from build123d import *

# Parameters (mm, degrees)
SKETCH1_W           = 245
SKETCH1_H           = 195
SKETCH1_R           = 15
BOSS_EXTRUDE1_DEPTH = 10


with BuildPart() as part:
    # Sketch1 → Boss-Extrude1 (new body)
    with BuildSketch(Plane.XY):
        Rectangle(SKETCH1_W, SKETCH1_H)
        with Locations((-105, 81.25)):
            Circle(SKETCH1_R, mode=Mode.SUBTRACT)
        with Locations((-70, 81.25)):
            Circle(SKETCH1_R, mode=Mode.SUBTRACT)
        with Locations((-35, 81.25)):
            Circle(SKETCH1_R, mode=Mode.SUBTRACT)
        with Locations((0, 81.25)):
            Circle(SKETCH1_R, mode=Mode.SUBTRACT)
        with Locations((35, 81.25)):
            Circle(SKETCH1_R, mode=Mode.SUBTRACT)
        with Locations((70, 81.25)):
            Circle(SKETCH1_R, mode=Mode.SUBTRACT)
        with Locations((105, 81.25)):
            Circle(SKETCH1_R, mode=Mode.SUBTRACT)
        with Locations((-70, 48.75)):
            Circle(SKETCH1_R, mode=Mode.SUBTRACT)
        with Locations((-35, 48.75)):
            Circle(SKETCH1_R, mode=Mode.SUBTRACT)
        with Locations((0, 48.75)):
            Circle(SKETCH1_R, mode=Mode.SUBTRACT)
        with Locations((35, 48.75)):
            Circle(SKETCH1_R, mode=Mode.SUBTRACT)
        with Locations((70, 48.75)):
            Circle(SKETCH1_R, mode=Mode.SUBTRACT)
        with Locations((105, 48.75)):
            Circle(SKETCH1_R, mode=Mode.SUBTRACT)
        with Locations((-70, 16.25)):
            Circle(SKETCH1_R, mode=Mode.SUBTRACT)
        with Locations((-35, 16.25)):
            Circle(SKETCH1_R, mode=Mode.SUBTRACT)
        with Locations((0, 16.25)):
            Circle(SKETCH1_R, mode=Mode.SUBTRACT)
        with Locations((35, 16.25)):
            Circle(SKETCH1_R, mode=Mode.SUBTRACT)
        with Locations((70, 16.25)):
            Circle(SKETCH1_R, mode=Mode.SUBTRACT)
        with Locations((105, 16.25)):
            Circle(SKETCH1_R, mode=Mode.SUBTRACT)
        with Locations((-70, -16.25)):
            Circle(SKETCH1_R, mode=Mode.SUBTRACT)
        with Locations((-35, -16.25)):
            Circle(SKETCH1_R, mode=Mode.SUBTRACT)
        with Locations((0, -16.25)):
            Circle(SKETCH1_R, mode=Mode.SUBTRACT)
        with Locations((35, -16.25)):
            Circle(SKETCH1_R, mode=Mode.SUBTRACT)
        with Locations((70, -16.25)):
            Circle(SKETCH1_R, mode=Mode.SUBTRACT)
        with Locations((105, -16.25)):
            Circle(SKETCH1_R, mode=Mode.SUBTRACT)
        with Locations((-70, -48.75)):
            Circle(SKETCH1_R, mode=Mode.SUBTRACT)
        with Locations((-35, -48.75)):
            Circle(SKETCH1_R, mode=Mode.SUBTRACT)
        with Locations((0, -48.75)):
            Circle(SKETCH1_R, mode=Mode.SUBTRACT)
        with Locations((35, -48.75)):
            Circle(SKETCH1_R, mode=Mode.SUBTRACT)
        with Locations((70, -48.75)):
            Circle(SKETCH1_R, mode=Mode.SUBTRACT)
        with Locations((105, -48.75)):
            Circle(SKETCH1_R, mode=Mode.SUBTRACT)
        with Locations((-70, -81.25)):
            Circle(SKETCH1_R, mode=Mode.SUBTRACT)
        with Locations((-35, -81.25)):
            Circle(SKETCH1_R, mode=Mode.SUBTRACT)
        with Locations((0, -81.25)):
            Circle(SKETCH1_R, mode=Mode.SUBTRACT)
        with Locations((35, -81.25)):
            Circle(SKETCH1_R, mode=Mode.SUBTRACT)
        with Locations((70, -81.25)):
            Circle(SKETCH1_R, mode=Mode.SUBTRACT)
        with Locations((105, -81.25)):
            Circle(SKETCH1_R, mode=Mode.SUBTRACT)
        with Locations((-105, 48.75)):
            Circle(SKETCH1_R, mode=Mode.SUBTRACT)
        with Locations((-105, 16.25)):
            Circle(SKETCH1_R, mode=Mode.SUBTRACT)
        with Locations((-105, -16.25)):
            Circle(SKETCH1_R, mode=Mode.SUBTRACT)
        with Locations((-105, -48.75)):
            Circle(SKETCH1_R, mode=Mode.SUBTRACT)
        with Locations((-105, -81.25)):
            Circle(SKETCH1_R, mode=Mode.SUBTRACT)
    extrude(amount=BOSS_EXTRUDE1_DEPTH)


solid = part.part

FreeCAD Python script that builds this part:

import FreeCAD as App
import Part
import Sketcher
Q = App.Units.Quantity


def add_polygon(sketch, points):
    """Adds a closed chain of lines whose ends are joined by coincident constraints."""
    first, n = sketch.GeometryCount, len(points)
    for a, b in zip(points, points[1:] + points[:1]):
        sketch.addGeometry(Part.LineSegment(App.Vector(*a, 0), App.Vector(*b, 0)), False)
    for i in range(n):
        sketch.addConstraint(Sketcher.Constraint("Coincident", first + i, 2, first + (i + 1) % n, 1))

doc = App.newDocument("Part")
body = doc.addObject("PartDesign::Body", "Body")

sketch1 = doc.addObject("Sketcher::SketchObject", "Sketch")
body.addObject(sketch1)
sketch1.AttachmentSupport = (doc.XY_Plane, [""])
sketch1.MapMode = "FlatFace"
add_polygon(sketch1, [(-122, 98), (-122, -98), (122, -98), (122, 98)])
sketch1.addGeometry(Part.Circle(App.Vector(-105, -81, 0), App.Vector(0, 0, 1), 15), False)
sketch1.addGeometry(Part.Circle(App.Vector(-70, -81, 0), App.Vector(0, 0, 1), 15), False)
sketch1.addGeometry(Part.Circle(App.Vector(-105, -49, 0), App.Vector(0, 0, 1), 15), False)
sketch1.addGeometry(Part.Circle(App.Vector(-70, -49, 0), App.Vector(0, 0, 1), 15), False)
sketch1.addGeometry(Part.Circle(App.Vector(-35, -81, 0), App.Vector(0, 0, 1), 15), False)
sketch1.addGeometry(Part.Circle(App.Vector(-35, -49, 0), App.Vector(0, 0, 1), 15), False)
sketch1.addGeometry(Part.Circle(App.Vector(-105, -16, 0), App.Vector(0, 0, 1), 15), False)
sketch1.addGeometry(Part.Circle(App.Vector(-70, -16, 0), App.Vector(0, 0, 1), 15), False)
sketch1.addGeometry(Part.Circle(App.Vector(-35, -16, 0), App.Vector(0, 0, 1), 15), False)
sketch1.addGeometry(Part.Circle(App.Vector(0, -81, 0), App.Vector(0, 0, 1), 15), False)
sketch1.addGeometry(Part.Circle(App.Vector(35, -81, 0), App.Vector(0, 0, 1), 15), False)
sketch1.addGeometry(Part.Circle(App.Vector(0, -49, 0), App.Vector(0, 0, 1), 15), False)
sketch1.addGeometry(Part.Circle(App.Vector(35, -49, 0), App.Vector(0, 0, 1), 15), False)
sketch1.addGeometry(Part.Circle(App.Vector(70, -81, 0), App.Vector(0, 0, 1), 15), False)
sketch1.addGeometry(Part.Circle(App.Vector(105, -81, 0), App.Vector(0, 0, 1), 15), False)
sketch1.addGeometry(Part.Circle(App.Vector(70, -49, 0), App.Vector(0, 0, 1), 15), False)
sketch1.addGeometry(Part.Circle(App.Vector(105, -49, 0), App.Vector(0, 0, 1), 15), False)
sketch1.addGeometry(Part.Circle(App.Vector(0, -16, 0), App.Vector(0, 0, 1), 15), False)
sketch1.addGeometry(Part.Circle(App.Vector(35, -16, 0), App.Vector(0, 0, 1), 15), False)
sketch1.addGeometry(Part.Circle(App.Vector(70, -16, 0), App.Vector(0, 0, 1), 15), False)
sketch1.addGeometry(Part.Circle(App.Vector(105, -16, 0), App.Vector(0, 0, 1), 15), False)
sketch1.addGeometry(Part.Circle(App.Vector(-105, 16, 0), App.Vector(0, 0, 1), 15), False)
sketch1.addGeometry(Part.Circle(App.Vector(-70, 16, 0), App.Vector(0, 0, 1), 15), False)
sketch1.addGeometry(Part.Circle(App.Vector(-35, 16, 0), App.Vector(0, 0, 1), 15), False)
sketch1.addGeometry(Part.Circle(App.Vector(-105, 49, 0), App.Vector(0, 0, 1), 15), False)
sketch1.addGeometry(Part.Circle(App.Vector(-70, 49, 0), App.Vector(0, 0, 1), 15), False)
sketch1.addGeometry(Part.Circle(App.Vector(-105, 81, 0), App.Vector(0, 0, 1), 15), False)
sketch1.addGeometry(Part.Circle(App.Vector(-70, 81, 0), App.Vector(0, 0, 1), 15), False)
sketch1.addGeometry(Part.Circle(App.Vector(-35, 49, 0), App.Vector(0, 0, 1), 15), False)
sketch1.addGeometry(Part.Circle(App.Vector(-35, 81, 0), App.Vector(0, 0, 1), 15), False)
sketch1.addGeometry(Part.Circle(App.Vector(0, 16, 0), App.Vector(0, 0, 1), 15), False)
sketch1.addGeometry(Part.Circle(App.Vector(35, 16, 0), App.Vector(0, 0, 1), 15), False)
sketch1.addGeometry(Part.Circle(App.Vector(70, 16, 0), App.Vector(0, 0, 1), 15), False)
sketch1.addGeometry(Part.Circle(App.Vector(105, 16, 0), App.Vector(0, 0, 1), 15), False)
sketch1.addGeometry(Part.Circle(App.Vector(0, 49, 0), App.Vector(0, 0, 1), 15), False)
sketch1.addGeometry(Part.Circle(App.Vector(35, 49, 0), App.Vector(0, 0, 1), 15), False)
sketch1.addGeometry(Part.Circle(App.Vector(0, 81, 0), App.Vector(0, 0, 1), 15), False)
sketch1.addGeometry(Part.Circle(App.Vector(35, 81, 0), App.Vector(0, 0, 1), 15), False)
sketch1.addGeometry(Part.Circle(App.Vector(70, 49, 0), App.Vector(0, 0, 1), 15), False)
sketch1.addGeometry(Part.Circle(App.Vector(105, 49, 0), App.Vector(0, 0, 1), 15), False)
sketch1.addGeometry(Part.Circle(App.Vector(70, 81, 0), App.Vector(0, 0, 1), 15), False)
sketch1.addGeometry(Part.Circle(App.Vector(105, 81, 0), App.Vector(0, 0, 1), 15), False)
sketch1.addConstraint([
    Sketcher.Constraint("Vertical", 0),
    Sketcher.Constraint("Horizontal", 1),
    Sketcher.Constraint("Vertical", 2),
    Sketcher.Constraint("Horizontal", 3),
    Sketcher.Constraint("Equal", 4, 5),
    Sketcher.Constraint("Equal", 5, 6),
    Sketcher.Constraint("Equal", 6, 7),
    Sketcher.Constraint("Equal", 7, 8),
    Sketcher.Constraint("Equal", 8, 9),
    Sketcher.Constraint("Equal", 9, 10),
    Sketcher.Constraint("Equal", 10, 11),
    Sketcher.Constraint("Equal", 11, 12),
    Sketcher.Constraint("Equal", 12, 13),
    Sketcher.Constraint("Equal", 13, 14),
    Sketcher.Constraint("Equal", 14, 15),
    Sketcher.Constraint("Equal", 15, 16),
    Sketcher.Constraint("Equal", 16, 17),
    Sketcher.Constraint("Equal", 17, 18),
    Sketcher.Constraint("Equal", 18, 19),
    Sketcher.Constraint("Equal", 19, 20),
    Sketcher.Constraint("Equal", 20, 21),
    Sketcher.Constraint("Equal", 21, 22),
    Sketcher.Constraint("Equal", 22, 23),
    Sketcher.Constraint("Equal", 23, 24),
    Sketcher.Constraint("Equal", 24, 25),
    Sketcher.Constraint("Equal", 25, 26),
    Sketcher.Constraint("Equal", 26, 27),
    Sketcher.Constraint("Equal", 27, 28),
    Sketcher.Constraint("Equal", 28, 29),
    Sketcher.Constraint("Equal", 29, 30),
    Sketcher.Constraint("Equal", 30, 31),
    Sketcher.Constraint("Equal", 31, 32),
    Sketcher.Constraint("Equal", 32, 33),
    Sketcher.Constraint("Equal", 33, 34),
    Sketcher.Constraint("Equal", 34, 35),
    Sketcher.Constraint("Equal", 35, 36),
    Sketcher.Constraint("Equal", 36, 37),
    Sketcher.Constraint("Equal", 37, 38),
    Sketcher.Constraint("Equal", 38, 39),
    Sketcher.Constraint("Equal", 39, 40),
    Sketcher.Constraint("Equal", 40, 41),
    Sketcher.Constraint("Equal", 41, 42),
    Sketcher.Constraint("Equal", 42, 43),
    Sketcher.Constraint("Equal", 43, 44),
    Sketcher.Constraint("Equal", 44, 45),
    Sketcher.Constraint("Symmetric", 24, 3, 25, 3, -1, 1),
    Sketcher.Constraint("Symmetric", 23, 3, 26, 3, -1, 1),
    Sketcher.Constraint("Symmetric", 22, 3, 27, 3, -1, 1),
    Sketcher.Constraint("Symmetric", 20, 3, 28, 3, -1, 1),
    Sketcher.Constraint("Symmetric", 19, 3, 29, 3, -1, 1),
    Sketcher.Constraint("Symmetric", 18, 3, 30, 3, -1, 1),
    Sketcher.Constraint("Symmetric", 17, 3, 31, 3, -1, 1),
    Sketcher.Constraint("Symmetric", 16, 3, 32, 3, -1, 1),
    Sketcher.Constraint("Symmetric", 14, 3, 33, 3, -1, 1),
    Sketcher.Constraint("Symmetric", 21, 3, 34, 3, -1, 1),
    Sketcher.Constraint("Symmetric", 12, 3, 35, 3, -1, 1),
    Sketcher.Constraint("Symmetric", 11, 3, 36, 3, -1, 1),
    Sketcher.Constraint("Symmetric", 10, 3, 37, 3, -1, 1),
    Sketcher.Constraint("Symmetric", 15, 3, 38, 3, -1, 1),
    Sketcher.Constraint("Symmetric", 9, 3, 39, 3, -1, 1),
    Sketcher.Constraint("Symmetric", 13, 3, 40, 3, -1, 1),
    Sketcher.Constraint("Symmetric", 8, 3, 41, 3, -1, 1),
    Sketcher.Constraint("Symmetric", 7, 3, 42, 3, -1, 1),
    Sketcher.Constraint("Symmetric", 6, 3, 43, 3, -1, 1),
    Sketcher.Constraint("Symmetric", 5, 3, 44, 3, -1, 1),
    Sketcher.Constraint("Symmetric", 4, 3, 45, 3, -1, 1),
    Sketcher.Constraint("Symmetric", 0, 2, 2, 2, -1, 1),
    Sketcher.Constraint("Symmetric", 8, 3, 14, 3, -2),
    Sketcher.Constraint("Symmetric", 9, 3, 16, 3, -2),
    Sketcher.Constraint("Symmetric", 5, 3, 17, 3, -2),
    Sketcher.Constraint("Symmetric", 4, 3, 18, 3, -2),
    Sketcher.Constraint("Symmetric", 7, 3, 19, 3, -2),
    Sketcher.Constraint("Symmetric", 6, 3, 20, 3, -2),
    Sketcher.Constraint("Symmetric", 12, 3, 22, 3, -2),
    Sketcher.Constraint("Symmetric", 11, 3, 23, 3, -2),
    Sketcher.Constraint("Symmetric", 10, 3, 24, 3, -2),
    Sketcher.Constraint("PointOnObject", 13, 3, -2),
    Sketcher.Constraint("PointOnObject", 15, 3, -2),
    Sketcher.Constraint("PointOnObject", 21, 3, -2),
    Sketcher.Constraint("Horizontal", 4, 3, 5, 3),
    Sketcher.Constraint("Horizontal", 6, 3, 7, 3),
    Sketcher.Constraint("Horizontal", 5, 3, 8, 3),
    Sketcher.Constraint("Horizontal", 7, 3, 9, 3),
    Sketcher.Constraint("Horizontal", 10, 3, 11, 3),
    Sketcher.Constraint("Horizontal", 11, 3, 12, 3),
    Sketcher.Constraint("Horizontal", 8, 3, 13, 3),
    Sketcher.Constraint("Horizontal", 9, 3, 15, 3),
    Sketcher.Constraint("Horizontal", 12, 3, 21, 3),
    Sketcher.Constraint("Vertical", 4, 3, 6, 3),
    Sketcher.Constraint("Vertical", 5, 3, 7, 3),
    Sketcher.Constraint("Vertical", 8, 3, 9, 3),
    Sketcher.Constraint("Vertical", 6, 3, 10, 3),
    Sketcher.Constraint("Vertical", 7, 3, 11, 3),
    Sketcher.Constraint("Vertical", 9, 3, 12, 3),
    Sketcher.Constraint("Diameter", 4, Q("30 mm")),
    Sketcher.Constraint("DistanceX", 1, 1, 1, 2, Q("245 mm")),
    Sketcher.Constraint("DistanceY", 0, 2, 0, 1, Q("195 mm")),
    Sketcher.Constraint("DistanceX", 4, 3, -1, 1, Q("105 mm")),
    Sketcher.Constraint("DistanceX", 5, 3, -1, 1, Q("70 mm")),
    Sketcher.Constraint("DistanceX", 8, 3, -1, 1, Q("35 mm")),
    Sketcher.Constraint("DistanceY", 4, 3, 10, 3, Q("65 mm")),
    Sketcher.Constraint("DistanceY", 6, 3, 25, 3, Q("65 mm")),
    Sketcher.Constraint("DistanceY", 4, 3, 6, 3, Q("32.5 mm")),
])
pad1 = doc.addObject("PartDesign::Pad", "Pad")
body.addObject(pad1)
pad1.Profile = sketch1
pad1.Length = 10

doc.recompute()
